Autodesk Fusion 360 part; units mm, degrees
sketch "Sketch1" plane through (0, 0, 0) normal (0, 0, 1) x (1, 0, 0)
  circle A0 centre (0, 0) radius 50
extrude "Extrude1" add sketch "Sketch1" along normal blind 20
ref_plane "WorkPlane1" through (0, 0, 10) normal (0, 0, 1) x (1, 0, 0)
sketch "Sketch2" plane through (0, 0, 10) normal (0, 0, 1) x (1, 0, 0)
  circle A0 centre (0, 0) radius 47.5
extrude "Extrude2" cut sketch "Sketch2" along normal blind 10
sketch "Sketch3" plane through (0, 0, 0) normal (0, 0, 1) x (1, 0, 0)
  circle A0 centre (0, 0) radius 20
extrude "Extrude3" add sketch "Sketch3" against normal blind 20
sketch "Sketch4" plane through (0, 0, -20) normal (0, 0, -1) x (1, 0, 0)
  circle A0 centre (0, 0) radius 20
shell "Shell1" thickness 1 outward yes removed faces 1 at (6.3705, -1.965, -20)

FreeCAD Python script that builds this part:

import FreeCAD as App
import Part
import Sketcher


def faces_at(feature, points):
    """Names of the faces that lie closest to the given points."""
    faces = feature.Shape.Faces
    near = lambda p: min(range(len(faces)), key=lambda i: faces[i].distToShape(Part.Vertex(*p))[0])
    return sorted({f"Face{near(p) + 1}" for p in points})

doc = App.newDocument("Part")
body = doc.addObject("PartDesign::Body", "Body")

# Sketch on XY plane
sketch1 = body.newObject("Sketcher::SketchObject", "Sketch")
sketch1.AttachmentSupport = (doc.getObject("XY_Plane"), [""])
sketch1.MapMode = "FlatFace"
sketch1.addGeometry(Part.Circle(App.Vector(0, 0, 0), App.Vector(0, 0, 1), 50), False)
sketch1.addConstraint(Sketcher.Constraint("Coincident", 0, 3, -1, 1))
sketch1.addConstraint(Sketcher.Constraint("Diameter", 0, 100.0))
pad1 = body.newObject("PartDesign::Pad", "Pad")
pad1.Profile = sketch1
pad1.Length = 20

# Sketch on XY plane
sketch2 = body.newObject("Sketcher::SketchObject", "Sketch001")
sketch2.AttachmentSupport = (doc.getObject("XY_Plane"), [""])
sketch2.MapMode = "FlatFace"
sketch2.AttachmentOffset = App.Placement(App.Vector(0, 0, 10), App.Rotation())
sketch2.addGeometry(Part.Circle(App.Vector(0, 0, 0), App.Vector(0, 0, 1), 47.5), False)
sketch2.addConstraint(Sketcher.Constraint("Coincident", 0, 3, -1, 1))
sketch2.addConstraint(Sketcher.Constraint("Diameter", 0, 95.0))
pocket1 = body.newObject("PartDesign::Pocket", "Pocket")
pocket1.Profile = sketch2
pocket1.Length = 10
pocket1.Reversed = True

# Sketch on XY plane
sketch3 = body.newObject("Sketcher::SketchObject", "Sketch002")
sketch3.AttachmentSupport = (doc.getObject("XY_Plane"), [""])
sketch3.MapMode = "FlatFace"
sketch3.addGeometry(Part.Circle(App.Vector(0, 0, 0), App.Vector(0, 0, 1), 20), False)
sketch3.addConstraint(Sketcher.Constraint("Coincident", 0, 3, -1, 1))
sketch3.addConstraint(Sketcher.Constraint("Diameter", 0, 40.0))
pad2 = body.newObject("PartDesign::Pad", "Pad001")
pad2.Profile = sketch3
pad2.Length = 20
pad2.Reversed = True
doc.recompute()

thickness = body.newObject("PartDesign::Thickness", "Thickness")
thickness.Base = (pad2, faces_at(pad2, [(6.37, -1.965, -20)]))
thickness.Value = 1
thickness.Reversed = False
thickness.Join = "Intersection"

doc.recompute()
